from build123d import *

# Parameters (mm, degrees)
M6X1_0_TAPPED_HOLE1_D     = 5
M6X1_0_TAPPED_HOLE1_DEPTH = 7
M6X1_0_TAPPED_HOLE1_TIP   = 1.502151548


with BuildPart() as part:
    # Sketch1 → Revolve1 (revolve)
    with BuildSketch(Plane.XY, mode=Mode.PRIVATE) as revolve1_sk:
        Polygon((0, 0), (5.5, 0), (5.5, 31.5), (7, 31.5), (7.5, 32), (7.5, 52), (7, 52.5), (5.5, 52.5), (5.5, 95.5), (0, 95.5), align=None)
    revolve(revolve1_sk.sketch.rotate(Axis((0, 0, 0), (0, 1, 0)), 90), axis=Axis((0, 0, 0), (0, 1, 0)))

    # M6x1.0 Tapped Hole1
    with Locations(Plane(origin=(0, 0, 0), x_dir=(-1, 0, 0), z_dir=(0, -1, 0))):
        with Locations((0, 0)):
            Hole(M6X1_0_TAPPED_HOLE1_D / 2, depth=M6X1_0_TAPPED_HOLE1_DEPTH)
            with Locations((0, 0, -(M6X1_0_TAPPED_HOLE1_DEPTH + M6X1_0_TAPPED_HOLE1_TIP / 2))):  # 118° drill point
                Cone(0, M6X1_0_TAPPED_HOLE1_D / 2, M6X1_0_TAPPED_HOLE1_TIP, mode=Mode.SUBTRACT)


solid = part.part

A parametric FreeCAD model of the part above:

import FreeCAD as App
import Part
import Sketcher

V = App.Vector


def add_polygon(sketch, points):
    """Adds a closed chain of lines whose ends are joined by coincident constraints."""
    first, n = sketch.GeometryCount, len(points)
    for a, b in zip(points, points[1:] + points[:1]):
        sketch.addGeometry(Part.LineSegment(App.Vector(*a, 0), App.Vector(*b, 0)), False)
    for i in range(n):
        sketch.addConstraint(Sketcher.Constraint("Coincident", first + i, 2, first + (i + 1) % n, 1))

doc = App.newDocument("Part")
body = doc.addObject("PartDesign::Body", "Body")

# Sketch on XY plane
sketch1 = body.newObject("Sketcher::SketchObject", "Sketch")
sketch1.AttachmentSupport = (doc.getObject("XY_Plane"), [""])
sketch1.MapMode = "FlatFace"
add_polygon(sketch1, [(0, 0), (5.5, 0), (5.5, 31.5), (7, 31.5), (7.5, 32), (7.5, 52), (7, 52.5), (5.5, 52.5), (5.5, 95.5), (0, 95.5)])  # lines 0-9
sketch1.addConstraint([
    Sketcher.Constraint("Horizontal", 0),
    Sketcher.Constraint("Vertical", 1),
    Sketcher.Constraint("Horizontal", 2),
    Sketcher.Constraint("Vertical", 4),
    Sketcher.Constraint("Horizontal", 6),
    Sketcher.Constraint("Vertical", 7),
    Sketcher.Constraint("Horizontal", 8),
    Sketcher.Constraint("Vertical", 9),
    Sketcher.Constraint("Coincident", 9, 2, -1, 1),
    Sketcher.Constraint("Perpendicular", 3, 5),
    Sketcher.Constraint("Vertical", 2, 2, 5, 2),
    Sketcher.Constraint("Vertical", 1, 2, 6, 2),
    Sketcher.Constraint("Equal", 3, 5),
    Sketcher.Constraint("DistanceY", 4, 1, 4, 2, 20.0),
    Sketcher.Constraint("DistanceY", 7, 1, 7, 2, 43.0),
    Sketcher.Constraint("DistanceX", 0, 1, 0, 2, 5.5),
    Sketcher.Constraint("DistanceX", 2, 1, 2, 2, 1.5),
    Sketcher.Constraint("DistanceY", 1, 1, 1, 2, 31.5),
    Sketcher.Constraint("DistanceY", 9, 2, 9, 1, 95.5),
])
revolution = body.newObject("PartDesign::Revolution", "Revolution")
revolution.Profile = sketch1
revolution.ReferenceAxis = (sketch1, ["V_Axis"])
revolution.Angle = 360

# Sketch on XZ plane
sketch2 = body.newObject("Sketcher::SketchObject", "Sketch001")
sketch2.AttachmentSupport = (doc.getObject("XZ_Plane"), [""])
sketch2.MapMode = "FlatFace"
sketch2.addGeometry(Part.Circle(V(0, 0, 0), V(0, 0, 1), 2.5), False)
sketch2.addConstraint([
    Sketcher.Constraint("Coincident", 0, 3, -1, 1),
    Sketcher.Constraint("Diameter", 0, 5.0),
])
doc.recompute()
hole = body.newObject("PartDesign::Hole", "Hole")
hole.Profile = sketch2
hole.ThreadType = "None"
hole.Diameter = 5
hole.DepthType = "Dimension"
hole.Depth = 7
hole.DrillPoint = "Angled"
hole.DrillPointAngle = 118

doc.recompute()
